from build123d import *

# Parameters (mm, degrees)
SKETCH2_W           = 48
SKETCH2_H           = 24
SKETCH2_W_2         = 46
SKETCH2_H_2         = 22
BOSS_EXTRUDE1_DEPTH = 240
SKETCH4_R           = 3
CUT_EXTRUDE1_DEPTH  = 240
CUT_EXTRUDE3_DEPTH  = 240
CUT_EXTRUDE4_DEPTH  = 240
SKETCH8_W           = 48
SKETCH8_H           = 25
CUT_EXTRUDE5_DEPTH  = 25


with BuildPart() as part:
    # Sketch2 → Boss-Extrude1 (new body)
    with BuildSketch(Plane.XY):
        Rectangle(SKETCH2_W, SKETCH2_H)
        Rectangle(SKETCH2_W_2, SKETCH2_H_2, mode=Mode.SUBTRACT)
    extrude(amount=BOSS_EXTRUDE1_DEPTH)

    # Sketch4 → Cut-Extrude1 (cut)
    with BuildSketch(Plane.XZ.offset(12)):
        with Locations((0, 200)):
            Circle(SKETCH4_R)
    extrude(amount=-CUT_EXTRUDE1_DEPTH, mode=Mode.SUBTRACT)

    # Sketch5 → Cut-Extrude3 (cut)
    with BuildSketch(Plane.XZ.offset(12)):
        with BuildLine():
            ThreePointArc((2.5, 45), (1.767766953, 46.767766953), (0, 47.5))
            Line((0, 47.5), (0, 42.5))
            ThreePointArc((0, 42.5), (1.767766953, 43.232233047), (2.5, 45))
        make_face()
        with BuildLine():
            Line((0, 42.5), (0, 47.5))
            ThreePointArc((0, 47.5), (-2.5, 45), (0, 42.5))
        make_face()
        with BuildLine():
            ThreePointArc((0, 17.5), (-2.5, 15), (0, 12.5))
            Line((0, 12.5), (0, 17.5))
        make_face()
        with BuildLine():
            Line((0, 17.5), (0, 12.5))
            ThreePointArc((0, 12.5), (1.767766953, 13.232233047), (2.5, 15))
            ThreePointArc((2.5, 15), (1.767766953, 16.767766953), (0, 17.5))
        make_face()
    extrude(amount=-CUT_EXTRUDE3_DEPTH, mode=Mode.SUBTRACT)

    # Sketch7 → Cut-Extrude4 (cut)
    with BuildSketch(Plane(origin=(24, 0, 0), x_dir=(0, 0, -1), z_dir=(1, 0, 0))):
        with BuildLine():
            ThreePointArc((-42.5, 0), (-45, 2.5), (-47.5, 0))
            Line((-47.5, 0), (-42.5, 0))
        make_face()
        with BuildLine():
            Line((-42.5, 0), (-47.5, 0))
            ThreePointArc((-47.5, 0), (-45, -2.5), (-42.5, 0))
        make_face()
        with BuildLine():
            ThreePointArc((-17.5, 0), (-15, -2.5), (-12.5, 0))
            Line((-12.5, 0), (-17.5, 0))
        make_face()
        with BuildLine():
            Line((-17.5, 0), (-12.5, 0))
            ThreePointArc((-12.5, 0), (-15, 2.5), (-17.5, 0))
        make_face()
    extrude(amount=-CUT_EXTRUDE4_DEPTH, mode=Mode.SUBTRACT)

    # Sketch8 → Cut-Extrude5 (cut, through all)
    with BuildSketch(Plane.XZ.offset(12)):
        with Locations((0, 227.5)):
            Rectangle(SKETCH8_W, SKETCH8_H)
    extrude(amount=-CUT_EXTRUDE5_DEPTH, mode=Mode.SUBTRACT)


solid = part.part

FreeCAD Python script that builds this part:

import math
import FreeCAD as App
import Part
import Sketcher
Q = App.Units.Quantity

doc = App.newDocument("Part")
params = doc.addObject("Spreadsheet::Sheet", "Params")
for row, (alias, value) in enumerate([
    ("sketch1_width", "48 mm"),
    ("sketch1_width2", "46 mm"),
    ("sketch1_height", "24 mm"),
    ("sketch1_height2", "22 mm"),
    ("pad1_length", "240 mm"),
    ("sketch2_diameter", "6 mm"),
    ("pocket1_length", "240 mm"),
    ("sketch3_radius", "2.5 mm"),
    ("pocket2_length", "240 mm"),
    ("sketch4_diameter", "5 mm"),
    ("pocket3_length", "240 mm"),
    ("sketch5_width", "48 mm"),
    ("sketch5_height", "25 mm"),
], start=1):
    params.set(f"A{row}", alias)
    params.set(f"B{row}", "=" + value)
    params.setAlias(f"B{row}", alias)

body = doc.addObject("PartDesign::Body", "Body")

# Sketch on XY plane
sketch1 = body.newObject("Sketcher::SketchObject", "Sketch")
sketch1.AttachmentSupport = (doc.getObject("XY_Plane"), [""])
sketch1.MapMode = "FlatFace"
sketch1.addGeometry(Part.LineSegment(App.Vector(-24, 12, 0), App.Vector(-24, -12, 0)), False)
sketch1.addGeometry(Part.LineSegment(App.Vector(-24, -12, 0), App.Vector(24, -12, 0)), False)
sketch1.addGeometry(Part.LineSegment(App.Vector(24, -12, 0), App.Vector(24, 12, 0)), False)
sketch1.addGeometry(Part.LineSegment(App.Vector(24, 12, 0), App.Vector(-24, 12, 0)), False)
sketch1.addGeometry(Part.LineSegment(App.Vector(23, -11, 0), App.Vector(-23, -11, 0)), False)
sketch1.addGeometry(Part.LineSegment(App.Vector(-23, -11, 0), App.Vector(-23, 11, 0)), False)
sketch1.addGeometry(Part.LineSegment(App.Vector(-23, 11, 0), App.Vector(23, 11, 0)), False)
sketch1.addGeometry(Part.LineSegment(App.Vector(23, 11, 0), App.Vector(23, -11, 0)), False)
sketch1.addConstraint(Sketcher.Constraint("Coincident", 0, 2, 1, 1))
sketch1.addConstraint(Sketcher.Constraint("Coincident", 1, 2, 2, 1))
sketch1.addConstraint(Sketcher.Constraint("Coincident", 2, 2, 3, 1))
sketch1.addConstraint(Sketcher.Constraint("Coincident", 3, 2, 0, 1))
sketch1.addConstraint(Sketcher.Constraint("Coincident", 4, 2, 5, 1))
sketch1.addConstraint(Sketcher.Constraint("Coincident", 5, 2, 6, 1))
sketch1.addConstraint(Sketcher.Constraint("Coincident", 6, 2, 7, 1))
sketch1.addConstraint(Sketcher.Constraint("Coincident", 7, 2, 4, 1))
sketch1.addConstraint(Sketcher.Constraint("Vertical", 0))
sketch1.addConstraint(Sketcher.Constraint("Horizontal", 1))
sketch1.addConstraint(Sketcher.Constraint("Vertical", 2))
sketch1.addConstraint(Sketcher.Constraint("Horizontal", 3))
sketch1.addConstraint(Sketcher.Constraint("Horizontal", 4))
sketch1.addConstraint(Sketcher.Constraint("Vertical", 5))
sketch1.addConstraint(Sketcher.Constraint("Horizontal", 6))
sketch1.addConstraint(Sketcher.Constraint("Vertical", 7))
sketch1.addConstraint(Sketcher.Constraint("Symmetric", 0, 2, 2, 2, -1, 1))
sketch1.addConstraint(Sketcher.Constraint("Symmetric", 4, 2, 6, 2, -1, 1))
sketch1.addConstraint(Sketcher.Constraint("DistanceX", 1, 1, 1, 2, Q("48 mm")))
sketch1.addConstraint(Sketcher.Constraint("DistanceX", 4, 2, 4, 1, Q("46 mm")))
sketch1.addConstraint(Sketcher.Constraint("DistanceY", 0, 2, 0, 1, Q("24 mm")))
sketch1.addConstraint(Sketcher.Constraint("DistanceY", 5, 1, 5, 2, Q("22 mm")))
sketch1.setExpression("Constraints[18]", "Params.sketch1_width")
sketch1.setExpression("Constraints[19]", "Params.sketch1_width2")
sketch1.setExpression("Constraints[20]", "Params.sketch1_height")
sketch1.setExpression("Constraints[21]", "Params.sketch1_height2")
pad1 = body.newObject("PartDesign::Pad", "Pad")
pad1.Profile = sketch1
pad1.setExpression("Length", "Params.pad1_length")

# Sketch on XZ plane
sketch2 = body.newObject("Sketcher::SketchObject", "Sketch001")
sketch2.AttachmentSupport = (doc.getObject("XZ_Plane"), [""])
sketch2.MapMode = "FlatFace"
sketch2.AttachmentOffset = App.Placement(App.Vector(0, 0, 12), App.Rotation())
sketch2.addGeometry(Part.Circle(App.Vector(0, 200, 0), App.Vector(0, 0, 1), 3), False)
sketch2.addConstraint(Sketcher.Constraint("PointOnObject", 0, 3, -2))
sketch2.addConstraint(Sketcher.Constraint("Diameter", 0, Q("6 mm")))
sketch2.addConstraint(Sketcher.Constraint("DistanceY", -1, 1, 0, 3, Q("200 mm")))
sketch2.setExpression("Constraints[1]", "Params.sketch2_diameter")
pocket1 = body.newObject("PartDesign::Pocket", "Pocket")
pocket1.Profile = sketch2
pocket1.setExpression("Length", "Params.pocket1_length")

# Sketch on XZ plane
sketch3 = body.newObject("Sketcher::SketchObject", "Sketch002")
sketch3.AttachmentSupport = (doc.getObject("XZ_Plane"), [""])
sketch3.MapMode = "FlatFace"
sketch3.AttachmentOffset = App.Placement(App.Vector(0, 0, 12), App.Rotation())
sketch3.addGeometry(Part.ArcOfCircle(Part.Circle(App.Vector(0, 45, 0), App.Vector(0, 0, 1), 2.5), math.radians(0), math.radians(90)), False)
sketch3.addGeometry(Part.ArcOfCircle(Part.Circle(App.Vector(0, 45, 0), App.Vector(0, 0, 1), 2.5), math.radians(90), math.radians(270)), False)
sketch3.addGeometry(Part.ArcOfCircle(Part.Circle(App.Vector(0, 45, 0), App.Vector(0, 0, 1), 2.5), math.radians(-90), math.radians(0)), False)
sketch3.addGeometry(Part.ArcOfCircle(Part.Circle(App.Vector(0, 15, 0), App.Vector(0, 0, 1), 2.5), math.radians(90), math.radians(270)), False)
sketch3.addGeometry(Part.ArcOfCircle(Part.Circle(App.Vector(0, 15, 0), App.Vector(0, 0, 1), 2.5), math.radians(-90), math.radians(0)), False)
sketch3.addGeometry(Part.ArcOfCircle(Part.Circle(App.Vector(0, 15, 0), App.Vector(0, 0, 1), 2.5), math.radians(0), math.radians(90)), False)
sketch3.addConstraint(Sketcher.Constraint("Tangent", 0, 2, 1, 1))
sketch3.addConstraint(Sketcher.Constraint("Tangent", 1, 2, 2, 1))
sketch3.addConstraint(Sketcher.Constraint("Tangent", 2, 2, 0, 1))
sketch3.addConstraint(Sketcher.Constraint("Tangent", 3, 2, 4, 1))
sketch3.addConstraint(Sketcher.Constraint("Tangent", 4, 2, 5, 1))
sketch3.addConstraint(Sketcher.Constraint("Tangent", 5, 2, 3, 1))
sketch3.addConstraint(Sketcher.Constraint("Equal", 2, 3))
sketch3.addConstraint(Sketcher.Constraint("PointOnObject", 0, 3, -2))
sketch3.addConstraint(Sketcher.Constraint("PointOnObject", 3, 3, -2))
sketch3.addConstraint(Sketcher.Constraint("PointOnObject", 0, 2, -2))
sketch3.addConstraint(Sketcher.Constraint("PointOnObject", 1, 2, -2))
sketch3.addConstraint(Sketcher.Constraint("PointOnObject", 3, 2, -2))
sketch3.addConstraint(Sketcher.Constraint("PointOnObject", 5, 2, -2))
sketch3.addConstraint(Sketcher.Constraint("Horizontal", 1, 3, 2, 2))
sketch3.addConstraint(Sketcher.Constraint("Horizontal", 5, 3, 4, 2))
sketch3.addConstraint(Sketcher.Constraint("Radius", 0, Q("2.5 mm")))
sketch3.addConstraint(Sketcher.Constraint("DistanceY", -1, 1, 0, 3, Q("45 mm")))
sketch3.addConstraint(Sketcher.Constraint("DistanceY", -1, 1, 3, 3, Q("15 mm")))
sketch3.setExpression("Constraints[15]", "Params.sketch3_radius")
pocket2 = body.newObject("PartDesign::Pocket", "Pocket001")
pocket2.Profile = sketch3
pocket2.setExpression("Length", "Params.pocket2_length")

# Sketch on YZ plane
sketch4 = body.newObject("Sketcher::SketchObject", "Sketch003")
sketch4.AttachmentSupport = (doc.getObject("YZ_Plane"), [""])
sketch4.MapMode = "FlatFace"
sketch4.AttachmentOffset = App.Placement(App.Vector(0, 0, 24), App.Rotation())
sketch4.addGeometry(Part.Circle(App.Vector(0, 45, 0), App.Vector(0, 0, 1), 2.5), False)
sketch4.addGeometry(Part.Circle(App.Vector(0, 15, 0), App.Vector(0, 0, 1), 2.5), False)
sketch4.addConstraint(Sketcher.Constraint("Equal", 0, 1))
sketch4.addConstraint(Sketcher.Constraint("PointOnObject", 0, 3, -2))
sketch4.addConstraint(Sketcher.Constraint("PointOnObject", 1, 3, -2))
sketch4.addConstraint(Sketcher.Constraint("Diameter", 0, Q("5 mm")))
sketch4.addConstraint(Sketcher.Constraint("DistanceY", -1, 1, 0, 3, Q("45 mm")))
sketch4.addConstraint(Sketcher.Constraint("DistanceY", -1, 1, 1, 3, Q("15 mm")))
sketch4.setExpression("Constraints[3]", "Params.sketch4_diameter")
pocket3 = body.newObject("PartDesign::Pocket", "Pocket002")
pocket3.Profile = sketch4
pocket3.setExpression("Length", "Params.pocket3_length")

# Sketch on XZ plane
sketch5 = body.newObject("Sketcher::SketchObject", "Sketch004")
sketch5.AttachmentSupport = (doc.getObject("XZ_Plane"), [""])
sketch5.MapMode = "FlatFace"
sketch5.AttachmentOffset = App.Placement(App.Vector(0, 0, 12), App.Rotation())
sketch5.addGeometry(Part.LineSegment(App.Vector(-24, 240, 0), App.Vector(-24, 215, 0)), False)
sketch5.addGeometry(Part.LineSegment(App.Vector(-24, 215, 0), App.Vector(24, 215, 0)), False)
sketch5.addGeometry(Part.LineSegment(App.Vector(24, 215, 0), App.Vector(24, 240, 0)), False)
sketch5.addGeometry(Part.LineSegment(App.Vector(24, 240, 0), App.Vector(-24, 240, 0)), False)
sketch5.addConstraint(Sketcher.Constraint("Coincident", 0, 2, 1, 1))
sketch5.addConstraint(Sketcher.Constraint("Coincident", 1, 2, 2, 1))
sketch5.addConstraint(Sketcher.Constraint("Coincident", 2, 2, 3, 1))
sketch5.addConstraint(Sketcher.Constraint("Coincident", 3, 2, 0, 1))
sketch5.addConstraint(Sketcher.Constraint("Vertical", 0))
sketch5.addConstraint(Sketcher.Constraint("Horizontal", 1))
sketch5.addConstraint(Sketcher.Constraint("Vertical", 2))
sketch5.addConstraint(Sketcher.Constraint("Horizontal", 3))
sketch5.addConstraint(Sketcher.Constraint("DistanceX", 1, 1, 1, 2, Q("48 mm")))
sketch5.addConstraint(Sketcher.Constraint("DistanceY", 0, 2, 0, 1, Q("25 mm")))
sketch5.addConstraint(Sketcher.Constraint("DistanceX", 0, 2, -1, 1, Q("24 mm")))
sketch5.addConstraint(Sketcher.Constraint("DistanceY", -1, 1, 0, 2, Q("215 mm")))
sketch5.setExpression("Constraints[8]", "Params.sketch5_width")
sketch5.setExpression("Constraints[9]", "Params.sketch5_height")
pocket4 = body.newObject("PartDesign::Pocket", "Pocket003")
pocket4.Profile = sketch5
pocket4.Type = "ThroughAll"

doc.recompute()
